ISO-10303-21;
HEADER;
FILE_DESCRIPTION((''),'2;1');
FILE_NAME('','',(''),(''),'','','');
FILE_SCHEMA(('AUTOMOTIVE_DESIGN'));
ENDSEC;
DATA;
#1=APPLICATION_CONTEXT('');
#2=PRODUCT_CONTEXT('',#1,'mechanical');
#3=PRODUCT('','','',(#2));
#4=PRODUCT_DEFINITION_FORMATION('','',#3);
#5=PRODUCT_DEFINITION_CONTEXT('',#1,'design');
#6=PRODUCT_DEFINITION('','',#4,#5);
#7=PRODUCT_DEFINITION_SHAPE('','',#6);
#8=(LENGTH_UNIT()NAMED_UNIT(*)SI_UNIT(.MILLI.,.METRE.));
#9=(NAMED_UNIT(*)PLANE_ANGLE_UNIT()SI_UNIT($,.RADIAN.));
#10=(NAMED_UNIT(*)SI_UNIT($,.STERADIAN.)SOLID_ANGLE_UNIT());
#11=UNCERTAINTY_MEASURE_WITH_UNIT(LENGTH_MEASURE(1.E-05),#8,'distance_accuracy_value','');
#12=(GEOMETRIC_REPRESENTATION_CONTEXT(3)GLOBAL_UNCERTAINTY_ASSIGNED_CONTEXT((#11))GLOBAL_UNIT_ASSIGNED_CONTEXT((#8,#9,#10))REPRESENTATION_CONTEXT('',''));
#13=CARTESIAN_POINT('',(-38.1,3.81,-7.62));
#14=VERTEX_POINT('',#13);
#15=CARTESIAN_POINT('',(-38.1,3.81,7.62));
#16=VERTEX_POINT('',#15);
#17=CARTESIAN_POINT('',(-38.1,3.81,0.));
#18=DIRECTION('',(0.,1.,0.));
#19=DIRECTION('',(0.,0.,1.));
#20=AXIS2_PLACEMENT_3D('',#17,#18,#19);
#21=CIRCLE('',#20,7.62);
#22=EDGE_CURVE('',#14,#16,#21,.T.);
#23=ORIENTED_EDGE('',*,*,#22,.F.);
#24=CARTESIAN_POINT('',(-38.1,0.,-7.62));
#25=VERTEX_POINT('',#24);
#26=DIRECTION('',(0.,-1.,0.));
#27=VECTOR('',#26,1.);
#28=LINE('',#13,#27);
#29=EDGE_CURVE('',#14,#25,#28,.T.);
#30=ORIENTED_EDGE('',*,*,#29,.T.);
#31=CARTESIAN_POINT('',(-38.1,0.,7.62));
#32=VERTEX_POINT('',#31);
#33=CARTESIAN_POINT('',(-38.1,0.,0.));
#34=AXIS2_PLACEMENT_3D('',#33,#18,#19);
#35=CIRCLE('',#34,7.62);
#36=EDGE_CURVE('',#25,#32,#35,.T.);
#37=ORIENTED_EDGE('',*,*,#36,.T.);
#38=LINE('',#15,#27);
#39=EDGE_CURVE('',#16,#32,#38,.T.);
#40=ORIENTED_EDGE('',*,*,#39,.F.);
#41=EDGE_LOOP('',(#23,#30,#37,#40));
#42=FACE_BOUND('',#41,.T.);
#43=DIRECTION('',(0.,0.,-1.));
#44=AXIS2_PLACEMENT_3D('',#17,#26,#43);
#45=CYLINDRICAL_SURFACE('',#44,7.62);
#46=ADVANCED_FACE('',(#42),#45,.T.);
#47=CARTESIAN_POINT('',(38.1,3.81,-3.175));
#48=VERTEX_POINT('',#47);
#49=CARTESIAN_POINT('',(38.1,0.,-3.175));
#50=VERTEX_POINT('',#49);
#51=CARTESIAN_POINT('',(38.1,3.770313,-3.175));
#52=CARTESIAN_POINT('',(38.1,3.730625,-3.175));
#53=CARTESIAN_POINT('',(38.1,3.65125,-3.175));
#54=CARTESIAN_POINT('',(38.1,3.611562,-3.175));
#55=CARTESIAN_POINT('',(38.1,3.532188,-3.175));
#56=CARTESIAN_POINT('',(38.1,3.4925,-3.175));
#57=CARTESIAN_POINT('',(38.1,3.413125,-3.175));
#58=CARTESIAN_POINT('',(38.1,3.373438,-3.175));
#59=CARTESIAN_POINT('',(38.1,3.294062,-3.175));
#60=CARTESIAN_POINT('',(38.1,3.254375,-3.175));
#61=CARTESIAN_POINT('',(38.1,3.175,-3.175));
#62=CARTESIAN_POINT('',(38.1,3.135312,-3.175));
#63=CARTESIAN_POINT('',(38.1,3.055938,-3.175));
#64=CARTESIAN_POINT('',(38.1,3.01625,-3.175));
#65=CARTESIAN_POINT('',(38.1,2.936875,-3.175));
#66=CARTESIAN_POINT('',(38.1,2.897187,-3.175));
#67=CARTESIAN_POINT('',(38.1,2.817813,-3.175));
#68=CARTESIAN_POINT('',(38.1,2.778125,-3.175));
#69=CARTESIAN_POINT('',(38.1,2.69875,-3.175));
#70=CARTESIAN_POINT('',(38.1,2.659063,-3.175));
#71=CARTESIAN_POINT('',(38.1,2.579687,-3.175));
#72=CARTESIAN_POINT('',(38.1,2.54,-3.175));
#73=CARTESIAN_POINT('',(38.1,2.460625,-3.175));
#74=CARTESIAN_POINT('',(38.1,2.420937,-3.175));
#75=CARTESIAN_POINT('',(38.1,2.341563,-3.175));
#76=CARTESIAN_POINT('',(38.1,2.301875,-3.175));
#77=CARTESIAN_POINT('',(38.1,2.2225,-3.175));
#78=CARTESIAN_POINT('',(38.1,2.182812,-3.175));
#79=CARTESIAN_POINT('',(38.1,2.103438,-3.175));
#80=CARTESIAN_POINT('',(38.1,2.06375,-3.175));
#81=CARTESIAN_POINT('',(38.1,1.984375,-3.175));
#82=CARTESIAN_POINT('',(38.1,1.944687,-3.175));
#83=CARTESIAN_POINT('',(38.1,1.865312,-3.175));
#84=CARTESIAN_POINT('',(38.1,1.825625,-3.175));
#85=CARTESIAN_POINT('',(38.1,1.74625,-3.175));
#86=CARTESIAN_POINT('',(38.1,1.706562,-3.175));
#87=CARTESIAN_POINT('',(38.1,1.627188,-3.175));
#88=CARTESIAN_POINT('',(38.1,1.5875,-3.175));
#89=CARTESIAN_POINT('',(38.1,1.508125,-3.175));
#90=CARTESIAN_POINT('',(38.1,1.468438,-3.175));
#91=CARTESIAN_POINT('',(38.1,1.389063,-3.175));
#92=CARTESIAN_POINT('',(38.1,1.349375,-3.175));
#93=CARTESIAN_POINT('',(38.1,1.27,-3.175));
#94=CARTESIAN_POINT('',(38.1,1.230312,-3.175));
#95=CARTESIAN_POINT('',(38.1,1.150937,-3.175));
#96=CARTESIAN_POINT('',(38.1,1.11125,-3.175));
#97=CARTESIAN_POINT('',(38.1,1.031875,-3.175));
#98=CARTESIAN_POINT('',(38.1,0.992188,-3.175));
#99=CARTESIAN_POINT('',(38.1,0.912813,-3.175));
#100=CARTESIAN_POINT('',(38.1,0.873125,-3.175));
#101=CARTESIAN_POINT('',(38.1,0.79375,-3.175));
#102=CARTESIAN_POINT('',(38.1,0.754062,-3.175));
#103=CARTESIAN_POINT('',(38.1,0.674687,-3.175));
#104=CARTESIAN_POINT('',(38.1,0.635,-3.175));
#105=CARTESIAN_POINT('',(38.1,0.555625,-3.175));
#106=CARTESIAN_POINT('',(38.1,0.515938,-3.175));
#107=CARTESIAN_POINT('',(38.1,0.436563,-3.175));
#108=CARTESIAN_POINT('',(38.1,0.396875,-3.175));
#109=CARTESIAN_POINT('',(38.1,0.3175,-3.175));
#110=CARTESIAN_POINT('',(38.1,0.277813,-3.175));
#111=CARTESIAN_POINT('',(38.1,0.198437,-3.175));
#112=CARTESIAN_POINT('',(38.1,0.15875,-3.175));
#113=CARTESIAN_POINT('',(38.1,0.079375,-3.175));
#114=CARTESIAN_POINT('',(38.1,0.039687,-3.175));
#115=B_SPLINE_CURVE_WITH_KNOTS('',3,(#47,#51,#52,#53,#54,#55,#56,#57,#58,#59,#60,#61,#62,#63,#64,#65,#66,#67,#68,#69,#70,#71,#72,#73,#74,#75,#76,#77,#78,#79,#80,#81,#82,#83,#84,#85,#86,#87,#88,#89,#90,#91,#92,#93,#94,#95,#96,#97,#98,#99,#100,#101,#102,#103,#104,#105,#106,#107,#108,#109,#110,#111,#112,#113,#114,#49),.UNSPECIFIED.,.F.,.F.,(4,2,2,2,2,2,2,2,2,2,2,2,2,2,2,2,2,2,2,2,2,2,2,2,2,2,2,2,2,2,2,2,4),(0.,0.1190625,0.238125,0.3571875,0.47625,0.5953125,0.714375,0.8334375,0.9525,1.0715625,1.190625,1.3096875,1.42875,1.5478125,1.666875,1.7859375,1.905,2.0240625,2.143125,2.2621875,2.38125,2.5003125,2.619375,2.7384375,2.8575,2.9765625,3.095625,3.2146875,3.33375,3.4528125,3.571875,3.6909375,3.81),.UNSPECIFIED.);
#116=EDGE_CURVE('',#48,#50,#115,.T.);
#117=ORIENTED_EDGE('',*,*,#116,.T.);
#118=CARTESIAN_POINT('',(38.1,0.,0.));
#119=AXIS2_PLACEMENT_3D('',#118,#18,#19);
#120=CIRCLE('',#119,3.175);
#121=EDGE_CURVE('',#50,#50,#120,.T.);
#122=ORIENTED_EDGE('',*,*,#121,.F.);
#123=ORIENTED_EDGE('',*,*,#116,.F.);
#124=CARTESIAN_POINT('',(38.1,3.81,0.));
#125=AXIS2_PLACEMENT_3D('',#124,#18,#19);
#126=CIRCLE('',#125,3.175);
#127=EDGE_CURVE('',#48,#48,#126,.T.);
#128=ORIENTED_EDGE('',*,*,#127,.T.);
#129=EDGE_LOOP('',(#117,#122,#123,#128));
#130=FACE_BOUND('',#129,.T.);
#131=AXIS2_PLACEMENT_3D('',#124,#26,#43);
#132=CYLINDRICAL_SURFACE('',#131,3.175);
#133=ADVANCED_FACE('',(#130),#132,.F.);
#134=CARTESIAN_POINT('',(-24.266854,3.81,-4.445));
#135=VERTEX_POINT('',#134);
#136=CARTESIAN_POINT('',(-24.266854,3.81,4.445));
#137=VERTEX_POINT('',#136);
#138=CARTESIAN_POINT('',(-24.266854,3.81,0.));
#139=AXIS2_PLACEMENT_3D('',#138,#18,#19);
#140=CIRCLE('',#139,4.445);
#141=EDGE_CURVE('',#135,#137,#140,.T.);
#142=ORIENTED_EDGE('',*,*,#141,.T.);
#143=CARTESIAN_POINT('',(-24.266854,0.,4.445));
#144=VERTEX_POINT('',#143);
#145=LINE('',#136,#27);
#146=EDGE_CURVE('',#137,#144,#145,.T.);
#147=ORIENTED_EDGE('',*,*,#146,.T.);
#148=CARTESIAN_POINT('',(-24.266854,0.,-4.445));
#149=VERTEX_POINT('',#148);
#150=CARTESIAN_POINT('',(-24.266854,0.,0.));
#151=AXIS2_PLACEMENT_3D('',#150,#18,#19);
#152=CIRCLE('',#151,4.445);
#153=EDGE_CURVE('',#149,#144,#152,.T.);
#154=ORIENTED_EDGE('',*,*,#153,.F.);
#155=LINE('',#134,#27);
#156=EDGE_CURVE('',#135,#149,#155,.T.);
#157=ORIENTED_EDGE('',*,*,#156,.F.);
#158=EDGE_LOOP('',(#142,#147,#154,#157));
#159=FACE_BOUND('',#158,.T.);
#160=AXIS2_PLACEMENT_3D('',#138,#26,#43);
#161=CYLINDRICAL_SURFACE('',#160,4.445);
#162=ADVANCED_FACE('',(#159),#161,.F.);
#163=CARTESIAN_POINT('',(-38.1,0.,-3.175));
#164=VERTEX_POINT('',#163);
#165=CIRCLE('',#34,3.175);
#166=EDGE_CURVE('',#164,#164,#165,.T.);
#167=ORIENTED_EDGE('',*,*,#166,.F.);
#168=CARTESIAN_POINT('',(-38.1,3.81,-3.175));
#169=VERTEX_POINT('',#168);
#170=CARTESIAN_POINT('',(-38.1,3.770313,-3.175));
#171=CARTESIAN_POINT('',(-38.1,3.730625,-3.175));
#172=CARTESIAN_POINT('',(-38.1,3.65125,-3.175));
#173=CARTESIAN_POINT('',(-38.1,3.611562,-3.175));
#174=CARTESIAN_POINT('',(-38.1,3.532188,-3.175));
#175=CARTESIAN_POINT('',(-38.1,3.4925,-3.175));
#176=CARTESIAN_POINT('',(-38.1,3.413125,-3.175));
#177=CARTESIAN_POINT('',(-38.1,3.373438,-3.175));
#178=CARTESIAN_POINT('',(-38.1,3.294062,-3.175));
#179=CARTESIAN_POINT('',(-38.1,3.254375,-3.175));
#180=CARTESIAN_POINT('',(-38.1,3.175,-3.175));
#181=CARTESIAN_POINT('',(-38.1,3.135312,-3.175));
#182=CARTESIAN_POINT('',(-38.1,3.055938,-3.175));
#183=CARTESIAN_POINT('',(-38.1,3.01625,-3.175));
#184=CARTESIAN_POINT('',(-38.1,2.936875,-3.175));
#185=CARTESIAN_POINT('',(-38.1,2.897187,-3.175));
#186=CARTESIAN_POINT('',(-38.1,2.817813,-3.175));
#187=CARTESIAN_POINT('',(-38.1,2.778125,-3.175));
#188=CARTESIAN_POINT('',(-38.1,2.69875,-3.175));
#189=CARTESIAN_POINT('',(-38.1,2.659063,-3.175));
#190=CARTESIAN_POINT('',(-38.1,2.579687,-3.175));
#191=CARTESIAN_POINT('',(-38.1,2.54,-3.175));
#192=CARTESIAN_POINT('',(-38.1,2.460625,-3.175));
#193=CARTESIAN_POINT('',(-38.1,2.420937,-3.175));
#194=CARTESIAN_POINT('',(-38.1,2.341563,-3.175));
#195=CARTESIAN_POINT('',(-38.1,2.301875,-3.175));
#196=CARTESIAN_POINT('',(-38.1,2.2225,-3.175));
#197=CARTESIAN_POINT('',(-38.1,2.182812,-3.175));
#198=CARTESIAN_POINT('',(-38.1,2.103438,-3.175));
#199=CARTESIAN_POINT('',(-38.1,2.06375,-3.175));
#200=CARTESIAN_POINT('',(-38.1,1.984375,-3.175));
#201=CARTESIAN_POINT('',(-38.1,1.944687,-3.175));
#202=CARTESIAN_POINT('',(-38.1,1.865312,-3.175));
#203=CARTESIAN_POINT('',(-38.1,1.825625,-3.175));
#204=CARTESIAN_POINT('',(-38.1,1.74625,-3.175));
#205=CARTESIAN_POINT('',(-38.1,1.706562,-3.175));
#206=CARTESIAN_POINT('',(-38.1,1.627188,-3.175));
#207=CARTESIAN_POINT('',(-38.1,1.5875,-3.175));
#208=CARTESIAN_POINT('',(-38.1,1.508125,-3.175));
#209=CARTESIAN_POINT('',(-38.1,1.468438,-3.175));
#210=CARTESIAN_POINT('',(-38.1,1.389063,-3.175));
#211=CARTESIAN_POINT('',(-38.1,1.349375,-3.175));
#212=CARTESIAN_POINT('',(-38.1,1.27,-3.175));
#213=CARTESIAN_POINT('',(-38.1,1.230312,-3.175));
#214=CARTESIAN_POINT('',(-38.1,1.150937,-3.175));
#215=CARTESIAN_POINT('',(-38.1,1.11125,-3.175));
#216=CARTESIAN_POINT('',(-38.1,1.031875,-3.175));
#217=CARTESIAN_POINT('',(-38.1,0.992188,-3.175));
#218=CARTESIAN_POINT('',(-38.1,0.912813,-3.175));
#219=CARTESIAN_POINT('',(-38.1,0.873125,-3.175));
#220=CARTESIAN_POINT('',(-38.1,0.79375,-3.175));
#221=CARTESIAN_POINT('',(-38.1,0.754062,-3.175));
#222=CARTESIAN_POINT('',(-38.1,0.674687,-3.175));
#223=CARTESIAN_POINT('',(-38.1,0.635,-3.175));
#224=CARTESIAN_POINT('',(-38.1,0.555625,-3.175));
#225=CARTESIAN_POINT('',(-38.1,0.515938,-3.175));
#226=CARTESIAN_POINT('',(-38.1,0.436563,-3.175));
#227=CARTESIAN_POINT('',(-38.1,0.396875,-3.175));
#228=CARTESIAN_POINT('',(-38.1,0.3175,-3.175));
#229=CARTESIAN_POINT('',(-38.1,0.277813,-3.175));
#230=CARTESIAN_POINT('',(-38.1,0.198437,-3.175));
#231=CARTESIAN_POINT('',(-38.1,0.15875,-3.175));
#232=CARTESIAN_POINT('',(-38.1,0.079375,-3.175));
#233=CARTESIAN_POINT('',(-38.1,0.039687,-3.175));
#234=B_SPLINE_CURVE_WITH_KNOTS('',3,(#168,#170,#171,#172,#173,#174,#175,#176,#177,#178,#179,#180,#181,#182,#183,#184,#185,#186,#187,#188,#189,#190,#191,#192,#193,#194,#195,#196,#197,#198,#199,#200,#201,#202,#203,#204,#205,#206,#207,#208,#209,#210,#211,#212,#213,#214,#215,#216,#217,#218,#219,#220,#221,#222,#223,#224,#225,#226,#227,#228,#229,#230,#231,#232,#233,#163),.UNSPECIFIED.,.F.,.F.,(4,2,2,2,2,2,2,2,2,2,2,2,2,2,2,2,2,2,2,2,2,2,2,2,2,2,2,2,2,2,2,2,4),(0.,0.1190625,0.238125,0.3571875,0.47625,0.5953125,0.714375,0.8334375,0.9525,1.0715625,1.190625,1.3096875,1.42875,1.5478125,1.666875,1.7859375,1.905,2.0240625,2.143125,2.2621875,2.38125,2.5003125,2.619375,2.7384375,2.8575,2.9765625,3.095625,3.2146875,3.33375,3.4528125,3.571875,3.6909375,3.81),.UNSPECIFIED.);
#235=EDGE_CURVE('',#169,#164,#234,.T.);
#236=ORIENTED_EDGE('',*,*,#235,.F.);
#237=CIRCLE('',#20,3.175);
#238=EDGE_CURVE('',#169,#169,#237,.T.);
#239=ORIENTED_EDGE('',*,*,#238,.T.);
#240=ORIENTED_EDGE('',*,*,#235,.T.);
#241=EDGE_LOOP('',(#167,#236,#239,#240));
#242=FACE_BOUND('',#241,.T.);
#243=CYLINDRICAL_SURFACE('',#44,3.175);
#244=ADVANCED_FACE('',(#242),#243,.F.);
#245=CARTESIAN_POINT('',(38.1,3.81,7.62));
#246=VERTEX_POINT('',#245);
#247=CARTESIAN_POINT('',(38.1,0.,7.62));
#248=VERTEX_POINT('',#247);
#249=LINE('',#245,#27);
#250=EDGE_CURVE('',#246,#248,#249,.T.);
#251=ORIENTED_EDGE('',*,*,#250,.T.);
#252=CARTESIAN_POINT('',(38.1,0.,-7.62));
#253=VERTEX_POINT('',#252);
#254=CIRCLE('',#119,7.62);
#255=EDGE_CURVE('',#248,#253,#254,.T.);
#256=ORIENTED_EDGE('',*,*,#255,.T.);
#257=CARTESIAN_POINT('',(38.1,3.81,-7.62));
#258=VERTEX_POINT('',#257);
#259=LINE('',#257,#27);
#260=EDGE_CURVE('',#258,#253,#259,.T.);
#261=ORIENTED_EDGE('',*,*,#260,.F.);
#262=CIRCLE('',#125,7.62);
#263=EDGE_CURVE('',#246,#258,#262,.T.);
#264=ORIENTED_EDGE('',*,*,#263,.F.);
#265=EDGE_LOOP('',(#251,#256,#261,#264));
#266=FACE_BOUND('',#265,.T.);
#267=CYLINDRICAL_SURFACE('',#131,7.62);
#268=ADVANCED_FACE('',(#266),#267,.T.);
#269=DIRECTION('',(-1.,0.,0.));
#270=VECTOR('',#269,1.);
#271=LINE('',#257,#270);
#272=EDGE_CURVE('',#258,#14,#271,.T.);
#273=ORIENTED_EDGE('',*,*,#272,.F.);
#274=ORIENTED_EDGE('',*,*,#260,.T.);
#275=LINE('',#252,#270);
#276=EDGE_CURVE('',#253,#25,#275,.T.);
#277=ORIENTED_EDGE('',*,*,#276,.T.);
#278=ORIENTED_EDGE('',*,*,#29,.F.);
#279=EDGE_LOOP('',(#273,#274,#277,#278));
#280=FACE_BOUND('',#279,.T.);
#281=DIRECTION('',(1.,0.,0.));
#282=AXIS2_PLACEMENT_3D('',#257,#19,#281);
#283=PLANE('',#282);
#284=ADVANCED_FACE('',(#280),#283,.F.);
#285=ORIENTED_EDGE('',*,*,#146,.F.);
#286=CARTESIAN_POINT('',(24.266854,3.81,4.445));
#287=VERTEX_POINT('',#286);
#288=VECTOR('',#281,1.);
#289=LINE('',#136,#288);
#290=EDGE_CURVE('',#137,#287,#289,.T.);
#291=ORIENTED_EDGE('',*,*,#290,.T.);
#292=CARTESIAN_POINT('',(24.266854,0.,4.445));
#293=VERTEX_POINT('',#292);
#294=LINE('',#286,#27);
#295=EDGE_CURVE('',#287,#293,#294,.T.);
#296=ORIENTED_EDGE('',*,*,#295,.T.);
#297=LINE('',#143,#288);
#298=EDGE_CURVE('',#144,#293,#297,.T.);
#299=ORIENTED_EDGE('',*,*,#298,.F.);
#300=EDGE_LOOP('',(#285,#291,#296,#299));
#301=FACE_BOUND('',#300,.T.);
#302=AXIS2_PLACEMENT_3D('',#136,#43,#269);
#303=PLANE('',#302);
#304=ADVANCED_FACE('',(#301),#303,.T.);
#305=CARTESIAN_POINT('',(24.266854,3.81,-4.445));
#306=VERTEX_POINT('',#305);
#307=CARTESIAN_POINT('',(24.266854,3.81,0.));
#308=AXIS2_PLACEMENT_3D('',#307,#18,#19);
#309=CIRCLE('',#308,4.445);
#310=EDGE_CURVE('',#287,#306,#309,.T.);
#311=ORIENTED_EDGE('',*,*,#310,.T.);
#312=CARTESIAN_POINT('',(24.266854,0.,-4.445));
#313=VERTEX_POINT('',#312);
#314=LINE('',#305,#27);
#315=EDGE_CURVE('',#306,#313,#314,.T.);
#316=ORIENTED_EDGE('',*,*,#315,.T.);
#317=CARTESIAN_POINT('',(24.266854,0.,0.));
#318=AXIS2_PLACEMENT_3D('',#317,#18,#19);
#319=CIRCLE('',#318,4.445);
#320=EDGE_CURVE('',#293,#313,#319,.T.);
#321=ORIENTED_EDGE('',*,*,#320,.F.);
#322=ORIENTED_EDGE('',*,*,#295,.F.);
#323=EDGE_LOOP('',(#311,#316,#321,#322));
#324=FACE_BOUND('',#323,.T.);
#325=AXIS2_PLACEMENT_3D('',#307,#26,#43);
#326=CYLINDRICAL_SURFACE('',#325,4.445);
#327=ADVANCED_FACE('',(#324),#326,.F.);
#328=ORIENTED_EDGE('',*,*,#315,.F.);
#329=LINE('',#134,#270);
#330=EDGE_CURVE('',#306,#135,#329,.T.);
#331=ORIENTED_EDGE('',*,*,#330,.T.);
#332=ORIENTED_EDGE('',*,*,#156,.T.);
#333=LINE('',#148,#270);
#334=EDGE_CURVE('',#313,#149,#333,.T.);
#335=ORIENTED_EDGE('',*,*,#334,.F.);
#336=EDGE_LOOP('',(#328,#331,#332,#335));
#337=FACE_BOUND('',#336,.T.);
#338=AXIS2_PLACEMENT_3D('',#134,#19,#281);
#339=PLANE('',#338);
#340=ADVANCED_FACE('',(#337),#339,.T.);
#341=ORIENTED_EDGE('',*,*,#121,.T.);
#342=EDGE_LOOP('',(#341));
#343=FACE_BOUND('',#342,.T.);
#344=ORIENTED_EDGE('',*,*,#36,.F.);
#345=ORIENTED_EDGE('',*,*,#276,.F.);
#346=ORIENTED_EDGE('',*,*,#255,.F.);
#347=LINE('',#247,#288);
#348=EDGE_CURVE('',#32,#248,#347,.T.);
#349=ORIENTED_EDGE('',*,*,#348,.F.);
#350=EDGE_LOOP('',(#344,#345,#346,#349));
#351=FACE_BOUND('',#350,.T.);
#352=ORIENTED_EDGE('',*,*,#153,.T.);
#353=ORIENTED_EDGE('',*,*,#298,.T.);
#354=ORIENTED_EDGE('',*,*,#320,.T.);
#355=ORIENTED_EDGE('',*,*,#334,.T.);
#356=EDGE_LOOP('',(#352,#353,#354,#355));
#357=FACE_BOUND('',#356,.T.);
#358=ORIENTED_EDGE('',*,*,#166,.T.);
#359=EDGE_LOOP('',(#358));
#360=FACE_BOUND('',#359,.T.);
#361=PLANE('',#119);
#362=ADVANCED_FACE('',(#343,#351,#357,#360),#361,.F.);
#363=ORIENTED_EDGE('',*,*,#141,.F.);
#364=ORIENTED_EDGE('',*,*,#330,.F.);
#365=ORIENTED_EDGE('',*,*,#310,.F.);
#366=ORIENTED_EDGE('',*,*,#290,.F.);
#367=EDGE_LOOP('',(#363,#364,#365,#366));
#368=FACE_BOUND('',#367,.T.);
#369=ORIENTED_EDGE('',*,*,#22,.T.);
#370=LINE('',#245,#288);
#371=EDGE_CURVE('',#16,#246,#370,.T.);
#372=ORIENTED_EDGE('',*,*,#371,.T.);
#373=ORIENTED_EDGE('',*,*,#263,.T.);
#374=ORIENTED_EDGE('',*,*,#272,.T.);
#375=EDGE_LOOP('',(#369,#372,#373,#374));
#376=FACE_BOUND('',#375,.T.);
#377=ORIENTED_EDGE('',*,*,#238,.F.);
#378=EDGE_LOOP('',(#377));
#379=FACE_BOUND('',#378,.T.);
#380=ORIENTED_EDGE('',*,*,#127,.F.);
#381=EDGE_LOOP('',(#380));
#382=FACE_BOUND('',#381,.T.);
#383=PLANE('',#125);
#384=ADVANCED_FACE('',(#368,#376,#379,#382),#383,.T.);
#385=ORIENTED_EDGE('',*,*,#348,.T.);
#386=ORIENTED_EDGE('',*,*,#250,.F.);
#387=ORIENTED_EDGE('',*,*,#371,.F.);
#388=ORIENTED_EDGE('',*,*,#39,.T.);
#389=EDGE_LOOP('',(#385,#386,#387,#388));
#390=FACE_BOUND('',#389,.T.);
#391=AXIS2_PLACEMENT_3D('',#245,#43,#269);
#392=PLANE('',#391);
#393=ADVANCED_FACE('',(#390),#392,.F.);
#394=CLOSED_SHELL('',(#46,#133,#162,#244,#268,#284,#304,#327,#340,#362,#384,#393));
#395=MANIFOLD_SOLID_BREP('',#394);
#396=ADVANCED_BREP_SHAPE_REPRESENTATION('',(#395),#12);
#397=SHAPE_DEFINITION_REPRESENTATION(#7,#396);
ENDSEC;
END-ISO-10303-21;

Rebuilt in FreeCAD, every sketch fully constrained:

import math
import FreeCAD as App
import Part
import Sketcher
Q = App.Units.Quantity

doc = App.newDocument("Part")
body = doc.addObject("PartDesign::Body", "Body")

sketch1 = body.newObject("Sketcher::SketchObject", "Sketch")
sketch1.AttachmentSupport = (doc.getObject("XZ_Plane"), [""])
sketch1.MapMode = "FlatFace"
sketch1.addGeometry(Part.LineSegment(App.Vector(-38.1, 7.6, 0), App.Vector(38.1, 7.6, 0)), False)
sketch1.addGeometry(Part.ArcOfCircle(Part.Circle(App.Vector(38.1, 0, 0), App.Vector(0, 0, 1), 7.6), math.radians(-90), math.radians(90)), False)
sketch1.addGeometry(Part.LineSegment(App.Vector(38.1, -7.6, 0), App.Vector(-38.1, -7.6, 0)), False)
sketch1.addGeometry(Part.ArcOfCircle(Part.Circle(App.Vector(-38.1, 0, 0), App.Vector(0, 0, 1), 7.6), math.radians(90), math.radians(270)), False)
sketch1.addGeometry(Part.Circle(App.Vector(38.1, 0, 0), App.Vector(0, 0, 1), 3.2), False)
sketch1.addGeometry(Part.LineSegment(App.Vector(-24.3, -4.4, 0), App.Vector(24.3, -4.4, 0)), False)
sketch1.addGeometry(Part.ArcOfCircle(Part.Circle(App.Vector(24.3, 0, 0), App.Vector(0, 0, 1), 4.4), math.radians(-90), math.radians(90)), False)
sketch1.addGeometry(Part.LineSegment(App.Vector(24.3, 4.4, 0), App.Vector(-24.3, 4.4, 0)), False)
sketch1.addGeometry(Part.ArcOfCircle(Part.Circle(App.Vector(-24.3, 0, 0), App.Vector(0, 0, 1), 4.4), math.radians(90), math.radians(270)), False)
sketch1.addGeometry(Part.Circle(App.Vector(-38.1, 0, 0), App.Vector(0, 0, 1), 3.2), False)
sketch1.addConstraint(Sketcher.Constraint("Tangent", 0, 2, 1, 2))
sketch1.addConstraint(Sketcher.Constraint("Tangent", 1, 1, 2, 1))
sketch1.addConstraint(Sketcher.Constraint("Tangent", 2, 2, 3, 2))
sketch1.addConstraint(Sketcher.Constraint("Tangent", 3, 1, 0, 1))
sketch1.addConstraint(Sketcher.Constraint("Tangent", 5, 2, 6, 1))
sketch1.addConstraint(Sketcher.Constraint("Tangent", 6, 2, 7, 1))
sketch1.addConstraint(Sketcher.Constraint("Tangent", 7, 2, 8, 1))
sketch1.addConstraint(Sketcher.Constraint("Tangent", 8, 2, 5, 1))
sketch1.addConstraint(Sketcher.Constraint("Horizontal", 0))
sketch1.addConstraint(Sketcher.Constraint("Horizontal", 2))
sketch1.addConstraint(Sketcher.Constraint("Horizontal", 5))
sketch1.addConstraint(Sketcher.Constraint("Horizontal", 7))
sketch1.addConstraint(Sketcher.Constraint("Coincident", 4, 3, 1, 3))
sketch1.addConstraint(Sketcher.Constraint("Coincident", 9, 3, 3, 3))
sketch1.addConstraint(Sketcher.Constraint("Equal", 4, 9))
sketch1.addConstraint(Sketcher.Constraint("Symmetric", 1, 3, 3, 3, -1, 1))
sketch1.addConstraint(Sketcher.Constraint("Symmetric", 6, 3, 8, 3, -1, 1))
sketch1.addConstraint(Sketcher.Constraint("Radius", 1, Q("0.3 in")))
sketch1.addConstraint(Sketcher.Constraint("Diameter", 4, Q("0.25 in")))
sketch1.addConstraint(Sketcher.Constraint("DistanceX", 0, 1, 0, 2, Q("3 in")))
sketch1.addConstraint(Sketcher.Constraint("Radius", 6, Q("0.175 in")))
sketch1.addConstraint(Sketcher.Constraint("DistanceX", 5, 1, 5, 2, 48.533708))
pad1 = body.newObject("PartDesign::Pad", "Pad")
pad1.Profile = sketch1
pad1.Length = Q("0.15 in")
pad1.Reversed = True

doc.recompute()
